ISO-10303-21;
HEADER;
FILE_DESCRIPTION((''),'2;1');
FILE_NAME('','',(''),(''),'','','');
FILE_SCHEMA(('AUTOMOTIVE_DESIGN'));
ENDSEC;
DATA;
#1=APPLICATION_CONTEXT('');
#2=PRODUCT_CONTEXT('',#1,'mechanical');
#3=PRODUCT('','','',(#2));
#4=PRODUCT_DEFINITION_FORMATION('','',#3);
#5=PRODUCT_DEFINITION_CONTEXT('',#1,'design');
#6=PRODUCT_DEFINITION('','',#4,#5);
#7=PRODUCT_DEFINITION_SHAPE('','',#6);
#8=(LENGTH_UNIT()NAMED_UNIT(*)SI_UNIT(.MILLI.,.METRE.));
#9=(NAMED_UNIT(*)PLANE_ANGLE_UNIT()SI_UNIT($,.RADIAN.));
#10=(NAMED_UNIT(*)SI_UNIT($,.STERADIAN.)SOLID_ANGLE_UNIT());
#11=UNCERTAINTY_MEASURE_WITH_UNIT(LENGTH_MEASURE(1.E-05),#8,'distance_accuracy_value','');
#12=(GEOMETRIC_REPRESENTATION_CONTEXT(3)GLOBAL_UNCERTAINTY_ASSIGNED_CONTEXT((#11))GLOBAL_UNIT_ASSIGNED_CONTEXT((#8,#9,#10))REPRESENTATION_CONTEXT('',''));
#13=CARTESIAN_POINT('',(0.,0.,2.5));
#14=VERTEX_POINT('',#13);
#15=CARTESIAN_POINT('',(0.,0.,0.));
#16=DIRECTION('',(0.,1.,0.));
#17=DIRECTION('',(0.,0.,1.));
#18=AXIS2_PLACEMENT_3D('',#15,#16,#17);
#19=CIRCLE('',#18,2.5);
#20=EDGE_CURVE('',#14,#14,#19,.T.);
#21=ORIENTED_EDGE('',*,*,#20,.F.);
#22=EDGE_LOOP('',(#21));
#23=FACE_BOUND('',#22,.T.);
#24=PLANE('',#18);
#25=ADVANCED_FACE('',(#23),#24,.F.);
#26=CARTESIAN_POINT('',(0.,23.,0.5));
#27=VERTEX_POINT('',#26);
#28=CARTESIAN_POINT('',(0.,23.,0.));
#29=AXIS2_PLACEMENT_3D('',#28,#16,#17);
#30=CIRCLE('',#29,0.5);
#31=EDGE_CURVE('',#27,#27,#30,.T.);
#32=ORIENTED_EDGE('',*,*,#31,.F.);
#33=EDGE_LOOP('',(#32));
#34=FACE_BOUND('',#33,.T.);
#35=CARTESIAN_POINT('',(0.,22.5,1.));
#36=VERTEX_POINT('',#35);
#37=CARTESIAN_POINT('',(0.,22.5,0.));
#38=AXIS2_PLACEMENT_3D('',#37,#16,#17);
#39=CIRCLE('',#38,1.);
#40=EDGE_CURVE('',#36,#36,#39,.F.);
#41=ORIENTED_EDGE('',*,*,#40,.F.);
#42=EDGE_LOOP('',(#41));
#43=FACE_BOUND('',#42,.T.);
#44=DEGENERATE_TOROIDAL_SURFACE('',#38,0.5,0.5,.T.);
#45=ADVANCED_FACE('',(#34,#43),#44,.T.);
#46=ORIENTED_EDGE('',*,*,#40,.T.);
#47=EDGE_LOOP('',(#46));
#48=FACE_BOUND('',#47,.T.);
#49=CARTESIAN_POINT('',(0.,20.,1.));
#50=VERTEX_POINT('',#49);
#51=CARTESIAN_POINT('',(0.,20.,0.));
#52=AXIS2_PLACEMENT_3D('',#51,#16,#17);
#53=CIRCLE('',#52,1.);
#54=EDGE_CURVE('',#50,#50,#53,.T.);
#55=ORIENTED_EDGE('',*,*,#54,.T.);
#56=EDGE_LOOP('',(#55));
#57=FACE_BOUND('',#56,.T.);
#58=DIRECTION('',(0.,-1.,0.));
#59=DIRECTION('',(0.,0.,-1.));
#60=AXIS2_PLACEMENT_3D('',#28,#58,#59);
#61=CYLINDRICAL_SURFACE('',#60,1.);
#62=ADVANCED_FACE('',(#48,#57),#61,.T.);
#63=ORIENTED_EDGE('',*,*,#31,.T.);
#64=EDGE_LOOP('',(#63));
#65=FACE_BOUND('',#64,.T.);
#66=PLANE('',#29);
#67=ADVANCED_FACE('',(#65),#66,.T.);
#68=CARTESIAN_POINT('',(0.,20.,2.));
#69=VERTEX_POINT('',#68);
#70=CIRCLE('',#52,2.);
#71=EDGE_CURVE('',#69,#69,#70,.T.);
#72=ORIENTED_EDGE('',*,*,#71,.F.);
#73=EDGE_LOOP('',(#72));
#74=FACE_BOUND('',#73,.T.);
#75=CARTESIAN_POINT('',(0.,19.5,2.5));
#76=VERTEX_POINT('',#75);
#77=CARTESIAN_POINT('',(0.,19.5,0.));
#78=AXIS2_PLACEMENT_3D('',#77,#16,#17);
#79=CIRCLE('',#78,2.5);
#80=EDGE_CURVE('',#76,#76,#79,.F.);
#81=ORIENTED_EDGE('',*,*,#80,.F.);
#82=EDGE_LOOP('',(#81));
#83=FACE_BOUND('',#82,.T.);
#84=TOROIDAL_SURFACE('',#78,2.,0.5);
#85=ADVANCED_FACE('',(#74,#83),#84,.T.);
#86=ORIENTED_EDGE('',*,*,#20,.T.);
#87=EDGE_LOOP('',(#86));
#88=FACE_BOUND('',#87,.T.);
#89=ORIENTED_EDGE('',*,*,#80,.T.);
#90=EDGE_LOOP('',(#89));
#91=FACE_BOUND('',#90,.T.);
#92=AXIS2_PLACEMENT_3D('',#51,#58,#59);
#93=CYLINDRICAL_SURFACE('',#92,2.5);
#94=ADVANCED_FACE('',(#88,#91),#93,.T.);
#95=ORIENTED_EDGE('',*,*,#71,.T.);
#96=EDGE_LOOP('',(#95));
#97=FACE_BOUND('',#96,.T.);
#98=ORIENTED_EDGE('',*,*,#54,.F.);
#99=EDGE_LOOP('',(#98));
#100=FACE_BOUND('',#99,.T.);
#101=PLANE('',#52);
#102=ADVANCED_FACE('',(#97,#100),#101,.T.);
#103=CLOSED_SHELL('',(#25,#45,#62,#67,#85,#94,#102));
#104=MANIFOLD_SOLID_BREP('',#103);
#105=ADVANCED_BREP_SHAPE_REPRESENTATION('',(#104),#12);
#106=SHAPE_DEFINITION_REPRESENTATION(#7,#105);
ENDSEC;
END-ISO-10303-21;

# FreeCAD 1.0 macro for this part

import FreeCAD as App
import Part
import Sketcher
from FreeCAD import Vector
Q = App.Units.Quantity


def edges_at(feature, points):
    """Names of the edges that pass closest to the given points."""
    edges = feature.Shape.Edges
    near = lambda p: min(range(len(edges)), key=lambda i: edges[i].distToShape(Part.Vertex(*p))[0])
    return sorted({f"Edge{near(p) + 1}" for p in points})

doc = App.newDocument("Part")
params = doc.addObject("Spreadsheet::Sheet", "Params")
for row, (alias, value) in enumerate([
    ("sketch1_diameter", "5 mm"),
    ("pad1_length", "20 mm"),
    ("sketch2_diameter", "2 mm"),
    ("pad2_length", "3 mm"),
    ("fillet_radius", "0.5 mm"),
], start=1):
    params.set(f"A{row}", alias)
    params.set(f"B{row}", "=" + value)
    params.setAlias(f"B{row}", alias)

body = doc.addObject("PartDesign::Body", "Body")

# Sketch on XZ plane
sketch1 = body.newObject("Sketcher::SketchObject", "Sketch")
sketch1.AttachmentSupport = (doc.getObject("XZ_Plane"), [""])
sketch1.MapMode = "FlatFace"
sketch1.addGeometry(Part.Circle(Vector(0, 0, 0), Vector(0, 0, 1), 2.5), False)
sketch1.addConstraint(Sketcher.Constraint("Coincident", 0, 3, -1, 1))
sketch1.addConstraint(Sketcher.Constraint("Diameter", 0, Q("5 mm")))
sketch1.setExpression("Constraints[1]", "Params.sketch1_diameter")
pad1 = body.newObject("PartDesign::Pad", "Pad")
pad1.Profile = sketch1
pad1.setExpression("Length", "Params.pad1_length")
pad1.Reversed = True

# Sketch on XZ plane
sketch2 = body.newObject("Sketcher::SketchObject", "Sketch001")
sketch2.AttachmentSupport = (doc.getObject("XZ_Plane"), [""])
sketch2.MapMode = "FlatFace"
sketch2.AttachmentOffset = App.Placement(Vector(0, 0, -20), App.Rotation())
sketch2.addGeometry(Part.Circle(Vector(0, 0, 0), Vector(0, 0, 1), 1), False)
sketch2.addConstraint(Sketcher.Constraint("Coincident", 0, 3, -1, 1))
sketch2.addConstraint(Sketcher.Constraint("Diameter", 0, Q("2 mm")))
sketch2.setExpression("Constraints[1]", "Params.sketch2_diameter")
pad2 = body.newObject("PartDesign::Pad", "Pad001")
pad2.Profile = sketch2
pad2.setExpression("Length", "Params.pad2_length")
pad2.Reversed = True
doc.recompute()

fillet = body.newObject("PartDesign::Fillet", "Fillet")
fillet.Base = (pad2, edges_at(pad2, [(0, 20, -2.5), (0, 23, -1)]))
fillet.setExpression("Radius", "Params.fillet_radius")

doc.recompute()
